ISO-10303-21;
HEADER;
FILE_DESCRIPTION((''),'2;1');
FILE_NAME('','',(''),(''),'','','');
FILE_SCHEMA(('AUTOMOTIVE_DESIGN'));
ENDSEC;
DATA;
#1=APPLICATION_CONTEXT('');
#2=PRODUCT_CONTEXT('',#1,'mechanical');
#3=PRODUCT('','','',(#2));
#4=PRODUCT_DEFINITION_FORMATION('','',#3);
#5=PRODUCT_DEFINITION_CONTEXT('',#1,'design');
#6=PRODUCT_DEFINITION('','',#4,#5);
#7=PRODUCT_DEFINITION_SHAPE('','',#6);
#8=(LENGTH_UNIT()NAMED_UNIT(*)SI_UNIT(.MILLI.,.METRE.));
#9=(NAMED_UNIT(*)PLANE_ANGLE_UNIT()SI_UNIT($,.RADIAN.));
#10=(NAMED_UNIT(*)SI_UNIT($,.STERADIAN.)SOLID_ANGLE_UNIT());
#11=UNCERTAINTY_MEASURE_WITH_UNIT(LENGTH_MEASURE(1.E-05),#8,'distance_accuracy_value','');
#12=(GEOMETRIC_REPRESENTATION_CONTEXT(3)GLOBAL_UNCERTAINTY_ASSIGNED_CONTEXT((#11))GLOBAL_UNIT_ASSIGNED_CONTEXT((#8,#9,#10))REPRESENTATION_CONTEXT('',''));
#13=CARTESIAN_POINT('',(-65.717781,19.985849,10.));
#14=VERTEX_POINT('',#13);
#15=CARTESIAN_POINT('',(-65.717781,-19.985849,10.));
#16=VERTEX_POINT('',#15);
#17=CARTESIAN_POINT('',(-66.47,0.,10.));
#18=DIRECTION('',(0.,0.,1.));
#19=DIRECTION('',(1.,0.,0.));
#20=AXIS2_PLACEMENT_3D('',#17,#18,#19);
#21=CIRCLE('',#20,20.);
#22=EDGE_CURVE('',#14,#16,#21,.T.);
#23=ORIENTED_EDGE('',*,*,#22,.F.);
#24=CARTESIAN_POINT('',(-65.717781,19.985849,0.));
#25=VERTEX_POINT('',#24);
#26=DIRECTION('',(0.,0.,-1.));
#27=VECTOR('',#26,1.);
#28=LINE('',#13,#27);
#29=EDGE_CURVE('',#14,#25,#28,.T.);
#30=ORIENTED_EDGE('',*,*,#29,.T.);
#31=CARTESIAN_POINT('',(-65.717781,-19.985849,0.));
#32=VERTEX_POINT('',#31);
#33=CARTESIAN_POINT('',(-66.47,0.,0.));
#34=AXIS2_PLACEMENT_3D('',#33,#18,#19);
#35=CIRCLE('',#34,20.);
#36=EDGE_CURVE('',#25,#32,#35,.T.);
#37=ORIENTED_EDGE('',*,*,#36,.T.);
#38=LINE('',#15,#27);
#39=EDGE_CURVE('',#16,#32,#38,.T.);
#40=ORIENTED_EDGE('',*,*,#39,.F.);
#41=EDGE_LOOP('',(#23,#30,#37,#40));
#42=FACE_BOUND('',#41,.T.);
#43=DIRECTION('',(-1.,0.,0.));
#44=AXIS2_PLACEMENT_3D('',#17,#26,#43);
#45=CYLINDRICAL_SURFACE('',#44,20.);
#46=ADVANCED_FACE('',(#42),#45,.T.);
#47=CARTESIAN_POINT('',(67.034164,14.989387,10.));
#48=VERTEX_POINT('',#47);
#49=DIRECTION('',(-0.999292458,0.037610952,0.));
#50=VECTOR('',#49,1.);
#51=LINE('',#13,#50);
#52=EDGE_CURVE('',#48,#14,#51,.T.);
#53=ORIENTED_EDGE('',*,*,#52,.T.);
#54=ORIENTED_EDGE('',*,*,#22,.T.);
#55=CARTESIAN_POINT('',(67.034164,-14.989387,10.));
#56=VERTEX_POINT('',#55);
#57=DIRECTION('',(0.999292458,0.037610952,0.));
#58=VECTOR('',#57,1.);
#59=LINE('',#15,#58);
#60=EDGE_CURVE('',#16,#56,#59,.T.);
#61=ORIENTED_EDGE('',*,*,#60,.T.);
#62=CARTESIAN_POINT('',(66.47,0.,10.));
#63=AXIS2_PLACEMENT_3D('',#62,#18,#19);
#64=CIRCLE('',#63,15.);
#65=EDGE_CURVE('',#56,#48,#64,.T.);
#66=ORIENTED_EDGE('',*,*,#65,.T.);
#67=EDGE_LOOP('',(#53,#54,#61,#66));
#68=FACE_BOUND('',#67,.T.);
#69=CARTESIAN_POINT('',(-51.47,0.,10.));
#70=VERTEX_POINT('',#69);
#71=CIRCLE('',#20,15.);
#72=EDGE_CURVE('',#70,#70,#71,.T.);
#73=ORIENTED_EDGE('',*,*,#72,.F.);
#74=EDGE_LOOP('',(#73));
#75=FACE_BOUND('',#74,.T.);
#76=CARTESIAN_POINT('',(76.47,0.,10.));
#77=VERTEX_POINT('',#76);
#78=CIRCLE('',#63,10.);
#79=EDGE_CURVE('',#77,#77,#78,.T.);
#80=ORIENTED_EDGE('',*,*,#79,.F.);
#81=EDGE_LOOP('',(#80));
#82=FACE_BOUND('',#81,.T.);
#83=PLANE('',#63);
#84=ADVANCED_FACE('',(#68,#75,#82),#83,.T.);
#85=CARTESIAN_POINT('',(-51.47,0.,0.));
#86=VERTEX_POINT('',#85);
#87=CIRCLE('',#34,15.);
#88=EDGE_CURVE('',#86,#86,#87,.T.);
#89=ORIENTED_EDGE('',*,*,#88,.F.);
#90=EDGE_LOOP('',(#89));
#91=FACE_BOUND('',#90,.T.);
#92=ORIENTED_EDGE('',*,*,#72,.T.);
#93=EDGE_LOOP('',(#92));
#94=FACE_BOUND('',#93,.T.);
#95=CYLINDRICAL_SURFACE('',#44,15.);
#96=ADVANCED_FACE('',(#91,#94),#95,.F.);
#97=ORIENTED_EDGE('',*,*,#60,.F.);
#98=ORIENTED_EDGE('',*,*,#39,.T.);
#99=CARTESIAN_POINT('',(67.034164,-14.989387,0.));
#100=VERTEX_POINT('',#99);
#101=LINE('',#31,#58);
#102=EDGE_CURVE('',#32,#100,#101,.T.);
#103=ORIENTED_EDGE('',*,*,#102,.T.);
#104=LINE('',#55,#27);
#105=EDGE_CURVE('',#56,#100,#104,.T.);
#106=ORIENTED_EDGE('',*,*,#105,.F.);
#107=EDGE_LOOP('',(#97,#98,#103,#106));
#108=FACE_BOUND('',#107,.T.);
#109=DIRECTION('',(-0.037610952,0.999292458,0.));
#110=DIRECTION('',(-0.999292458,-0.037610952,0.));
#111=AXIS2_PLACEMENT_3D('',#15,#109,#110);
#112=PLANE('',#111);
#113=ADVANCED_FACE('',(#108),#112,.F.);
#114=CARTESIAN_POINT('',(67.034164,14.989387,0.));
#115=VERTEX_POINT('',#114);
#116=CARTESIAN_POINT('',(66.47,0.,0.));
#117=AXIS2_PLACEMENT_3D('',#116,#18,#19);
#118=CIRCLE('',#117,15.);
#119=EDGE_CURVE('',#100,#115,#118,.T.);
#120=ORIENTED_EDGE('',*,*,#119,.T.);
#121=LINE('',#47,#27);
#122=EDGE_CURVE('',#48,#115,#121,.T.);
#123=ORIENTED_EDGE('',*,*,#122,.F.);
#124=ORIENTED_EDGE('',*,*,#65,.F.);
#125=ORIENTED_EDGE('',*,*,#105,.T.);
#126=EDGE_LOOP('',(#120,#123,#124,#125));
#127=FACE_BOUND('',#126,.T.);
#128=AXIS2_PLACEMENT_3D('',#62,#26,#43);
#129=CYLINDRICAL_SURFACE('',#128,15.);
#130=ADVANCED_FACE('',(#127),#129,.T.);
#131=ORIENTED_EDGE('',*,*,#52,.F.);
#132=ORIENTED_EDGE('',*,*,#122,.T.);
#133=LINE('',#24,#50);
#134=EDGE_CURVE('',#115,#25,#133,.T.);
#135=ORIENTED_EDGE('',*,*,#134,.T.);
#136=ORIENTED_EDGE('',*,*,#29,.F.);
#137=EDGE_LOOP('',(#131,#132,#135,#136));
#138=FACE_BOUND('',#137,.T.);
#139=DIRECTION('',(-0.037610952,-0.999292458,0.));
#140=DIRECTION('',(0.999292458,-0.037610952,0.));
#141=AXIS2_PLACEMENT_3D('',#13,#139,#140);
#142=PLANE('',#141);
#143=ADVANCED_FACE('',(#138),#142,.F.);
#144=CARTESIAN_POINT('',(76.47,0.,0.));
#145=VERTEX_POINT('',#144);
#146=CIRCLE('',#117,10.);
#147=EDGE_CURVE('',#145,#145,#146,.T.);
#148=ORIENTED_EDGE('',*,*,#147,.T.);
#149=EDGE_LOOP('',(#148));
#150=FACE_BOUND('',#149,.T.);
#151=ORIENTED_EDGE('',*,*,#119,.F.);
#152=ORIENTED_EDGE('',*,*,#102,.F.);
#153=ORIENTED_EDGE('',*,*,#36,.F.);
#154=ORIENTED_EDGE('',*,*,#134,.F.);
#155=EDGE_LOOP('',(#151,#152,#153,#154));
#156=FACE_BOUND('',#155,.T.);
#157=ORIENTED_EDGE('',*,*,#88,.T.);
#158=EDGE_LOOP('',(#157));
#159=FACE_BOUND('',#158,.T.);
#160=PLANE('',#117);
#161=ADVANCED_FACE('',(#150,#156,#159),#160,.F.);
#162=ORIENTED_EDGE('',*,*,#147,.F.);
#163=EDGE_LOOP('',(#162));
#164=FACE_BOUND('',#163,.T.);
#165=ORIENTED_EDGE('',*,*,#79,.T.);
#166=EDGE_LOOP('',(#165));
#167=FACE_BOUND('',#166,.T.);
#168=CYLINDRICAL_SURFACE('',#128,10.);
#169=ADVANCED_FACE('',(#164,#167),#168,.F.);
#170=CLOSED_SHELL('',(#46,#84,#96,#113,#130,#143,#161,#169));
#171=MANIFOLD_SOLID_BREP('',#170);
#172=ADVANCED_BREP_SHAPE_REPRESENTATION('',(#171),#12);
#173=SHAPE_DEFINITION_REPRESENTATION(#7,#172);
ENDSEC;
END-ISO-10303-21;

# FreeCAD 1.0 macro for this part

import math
import FreeCAD as App
import Part
import Sketcher
Q = App.Units.Quantity

doc = App.newDocument("Part")
body = doc.addObject("PartDesign::Body", "Body")

# Sketch on XY plane
sketch1 = body.newObject("Sketcher::SketchObject", "Sketch")
sketch1.AttachmentSupport = (doc.getObject("XY_Plane"), [""])
sketch1.MapMode = "FlatFace"
sketch1.addGeometry([
    Part.LineSegment(App.Vector(67, 15, 0), App.Vector(-66, 20, 0)),  # 0
    Part.ArcOfCircle(Part.Circle(App.Vector(-66, 0, 0), App.Vector(0, 0, 1), 20), math.radians(88), math.radians(272)),  # 1
    Part.LineSegment(App.Vector(-66, -20, 0), App.Vector(67, -15, 0)),  # 2
    Part.ArcOfCircle(Part.Circle(App.Vector(66, 0, 0), App.Vector(0, 0, 1), 15), math.radians(-88), math.radians(88)),  # 3
    Part.Circle(App.Vector(66, 0, 0), App.Vector(0, 0, 1), 10),  # 4
    Part.Circle(App.Vector(-66, 0, 0), App.Vector(0, 0, 1), 15),  # 5
], False)
sketch1.addConstraint([
    Sketcher.Constraint("Tangent", 0, 2, 1, 1),
    Sketcher.Constraint("Tangent", 1, 2, 2, 1),
    Sketcher.Constraint("Tangent", 2, 2, 3, 1),
    Sketcher.Constraint("Tangent", 3, 2, 0, 1),
    Sketcher.Constraint("Coincident", 4, 3, 3, 3),
    Sketcher.Constraint("Coincident", 5, 3, 1, 3),
    Sketcher.Constraint("Equal", 3, 5),
    Sketcher.Constraint("Symmetric", 1, 3, 3, 3, -1, 1),
    Sketcher.Constraint("PointOnObject", 1, 3, -1),
    Sketcher.Constraint("Diameter", 4, Q("20 mm")),
    Sketcher.Constraint("Diameter", 5, Q("30 mm")),
    Sketcher.Constraint("Radius", 1, Q("20 mm")),
    Sketcher.Constraint("DistanceX", 1, 3, -1, 1, Q("66.47 mm")),
])
pad1 = body.newObject("PartDesign::Pad", "Pad")
pad1.Profile = sketch1
pad1.Length = 10

doc.recompute()
